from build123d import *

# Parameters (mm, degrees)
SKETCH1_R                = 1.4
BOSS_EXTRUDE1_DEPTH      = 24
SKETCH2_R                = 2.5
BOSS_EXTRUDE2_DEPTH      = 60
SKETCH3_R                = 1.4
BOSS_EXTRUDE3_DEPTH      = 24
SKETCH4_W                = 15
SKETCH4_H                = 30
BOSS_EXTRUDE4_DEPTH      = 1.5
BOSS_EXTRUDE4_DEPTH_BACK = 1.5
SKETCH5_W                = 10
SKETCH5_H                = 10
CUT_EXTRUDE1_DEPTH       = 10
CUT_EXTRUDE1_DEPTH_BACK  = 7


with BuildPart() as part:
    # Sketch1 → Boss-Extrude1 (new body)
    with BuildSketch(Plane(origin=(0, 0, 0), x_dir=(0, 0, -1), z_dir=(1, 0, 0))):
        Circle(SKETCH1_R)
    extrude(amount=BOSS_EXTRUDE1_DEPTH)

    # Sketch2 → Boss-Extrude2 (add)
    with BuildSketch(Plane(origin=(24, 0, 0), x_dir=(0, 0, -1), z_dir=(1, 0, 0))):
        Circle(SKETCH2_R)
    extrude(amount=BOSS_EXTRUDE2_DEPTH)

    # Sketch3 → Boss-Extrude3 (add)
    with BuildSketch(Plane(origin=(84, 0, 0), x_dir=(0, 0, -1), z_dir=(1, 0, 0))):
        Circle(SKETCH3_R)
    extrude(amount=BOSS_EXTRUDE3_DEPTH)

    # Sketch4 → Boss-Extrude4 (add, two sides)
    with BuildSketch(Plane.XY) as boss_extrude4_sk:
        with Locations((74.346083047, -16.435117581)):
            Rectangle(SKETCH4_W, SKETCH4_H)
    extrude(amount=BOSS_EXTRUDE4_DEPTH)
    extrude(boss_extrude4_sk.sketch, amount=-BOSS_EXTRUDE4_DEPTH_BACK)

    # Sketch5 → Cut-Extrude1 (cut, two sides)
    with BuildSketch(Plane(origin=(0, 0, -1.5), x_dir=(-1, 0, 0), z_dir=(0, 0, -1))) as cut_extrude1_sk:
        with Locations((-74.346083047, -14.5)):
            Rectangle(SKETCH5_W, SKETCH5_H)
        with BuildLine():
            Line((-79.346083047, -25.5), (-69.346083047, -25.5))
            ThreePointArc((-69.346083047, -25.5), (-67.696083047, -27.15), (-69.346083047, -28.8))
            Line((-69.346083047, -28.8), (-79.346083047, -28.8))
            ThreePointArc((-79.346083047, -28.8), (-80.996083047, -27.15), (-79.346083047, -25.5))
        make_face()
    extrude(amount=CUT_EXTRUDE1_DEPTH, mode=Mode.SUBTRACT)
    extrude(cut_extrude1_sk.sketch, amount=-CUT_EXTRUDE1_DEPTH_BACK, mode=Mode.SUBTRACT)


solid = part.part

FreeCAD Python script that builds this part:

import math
import FreeCAD as App
import Part
import Sketcher

doc = App.newDocument("Part")
body = doc.addObject("PartDesign::Body", "Body")

# Sketch on YZ plane
sketch1 = body.newObject("Sketcher::SketchObject", "Sketch")
sketch1.AttachmentSupport = (doc.getObject("YZ_Plane"), [""])
sketch1.MapMode = "FlatFace"
sketch1.addGeometry(Part.Circle(App.Vector(0, 0, 0), App.Vector(0, 0, 1), 1.4), False)
sketch1.addConstraint([
    Sketcher.Constraint("Coincident", 0, 3, -1, 1),
    Sketcher.Constraint("Diameter", 0, 2.8),
])
pad1 = body.newObject("PartDesign::Pad", "Pad")
pad1.Profile = sketch1
pad1.Length = 24

# Sketch on YZ plane
sketch2 = body.newObject("Sketcher::SketchObject", "Sketch001")
sketch2.AttachmentSupport = (doc.getObject("YZ_Plane"), [""])
sketch2.MapMode = "FlatFace"
sketch2.AttachmentOffset = App.Placement(App.Vector(0, 0, 24), App.Rotation())
sketch2.addGeometry(Part.Circle(App.Vector(0, 0, 0), App.Vector(0, 0, 1), 2.5), False)
sketch2.addConstraint([
    Sketcher.Constraint("Coincident", 0, 3, -1, 1),
    Sketcher.Constraint("Diameter", 0, 5.0),
])
pad2 = body.newObject("PartDesign::Pad", "Pad001")
pad2.Profile = sketch2
pad2.Length = 60

# Sketch on YZ plane
sketch3 = body.newObject("Sketcher::SketchObject", "Sketch002")
sketch3.AttachmentSupport = (doc.getObject("YZ_Plane"), [""])
sketch3.MapMode = "FlatFace"
sketch3.AttachmentOffset = App.Placement(App.Vector(0, 0, 84), App.Rotation())
sketch3.addGeometry(Part.Circle(App.Vector(0, 0, 0), App.Vector(0, 0, 1), 1.4), False)
sketch3.addConstraint([
    Sketcher.Constraint("Coincident", 0, 3, -1, 1),
    Sketcher.Constraint("Diameter", 0, 2.8),
])
pad3 = body.newObject("PartDesign::Pad", "Pad002")
pad3.Profile = sketch3
pad3.Length = 24

# Sketch on XY plane
sketch4 = body.newObject("Sketcher::SketchObject", "Sketch003")
sketch4.AttachmentSupport = (doc.getObject("XY_Plane"), [""])
sketch4.MapMode = "FlatFace"
sketch4.addGeometry([
    Part.LineSegment(App.Vector(66.846083, -1.435118, 0), App.Vector(66.846083, -31.435118, 0)),
    Part.LineSegment(App.Vector(66.846083, -31.435118, 0), App.Vector(81.846083, -31.435118, 0)),
    Part.LineSegment(App.Vector(81.846083, -31.435118, 0), App.Vector(81.846083, -1.435118, 0)),
    Part.LineSegment(App.Vector(81.846083, -1.435118, 0), App.Vector(66.846083, -1.435118, 0)),
], False)
sketch4.addConstraint([
    Sketcher.Constraint("Coincident", 0, 2, 1, 1),
    Sketcher.Constraint("Coincident", 1, 2, 2, 1),
    Sketcher.Constraint("Coincident", 2, 2, 3, 1),
    Sketcher.Constraint("Coincident", 3, 2, 0, 1),
    Sketcher.Constraint("Vertical", 0),
    Sketcher.Constraint("Horizontal", 1),
    Sketcher.Constraint("Vertical", 2),
    Sketcher.Constraint("Horizontal", 3),
    Sketcher.Constraint("DistanceX", 1, 1, 1, 2, 15.0),
    Sketcher.Constraint("DistanceY", 0, 2, 0, 1, 30.0),
    Sketcher.Constraint("DistanceX", -1, 1, 0, 2, 66.846083),
    Sketcher.Constraint("DistanceY", 0, 2, -1, 1, 31.435118),
])
pad4 = body.newObject("PartDesign::Pad", "Pad003")
pad4.Profile = sketch4
pad4.Type = "TwoLengths"
pad4.Length = 1.5
pad4.Length2 = 1.5

# Sketch on XY plane
sketch5 = body.newObject("Sketcher::SketchObject", "Sketch004")
sketch5.AttachmentSupport = (doc.getObject("XY_Plane"), [""])
sketch5.MapMode = "FlatFace"
sketch5.AttachmentOffset = App.Placement(App.Vector(0, 0, -1.5), App.Rotation())
sketch5.addGeometry([
    Part.LineSegment(App.Vector(79.346083, -9.5, 0), App.Vector(79.346083, -19.5, 0)),  # 0
    Part.LineSegment(App.Vector(79.346083, -19.5, 0), App.Vector(69.346083, -19.5, 0)),  # 1
    Part.LineSegment(App.Vector(69.346083, -19.5, 0), App.Vector(69.346083, -9.5, 0)),  # 2
    Part.LineSegment(App.Vector(69.346083, -9.5, 0), App.Vector(79.346083, -9.5, 0)),  # 3
    Part.LineSegment(App.Vector(69.346083, -25.5, 0), App.Vector(79.346083, -25.5, 0)),  # 4
    Part.ArcOfCircle(Part.Circle(App.Vector(79.346083, -27.15, 0), App.Vector(0, 0, 1), 1.65), math.radians(-90), math.radians(90)),  # 5
    Part.LineSegment(App.Vector(79.346083, -28.8, 0), App.Vector(69.346083, -28.8, 0)),  # 6
    Part.ArcOfCircle(Part.Circle(App.Vector(69.346083, -27.15, 0), App.Vector(0, 0, 1), 1.65), math.radians(90), math.radians(270)),  # 7
], False)
sketch5.addConstraint([
    Sketcher.Constraint("Coincident", 0, 2, 1, 1),
    Sketcher.Constraint("Coincident", 1, 2, 2, 1),
    Sketcher.Constraint("Coincident", 2, 2, 3, 1),
    Sketcher.Constraint("Coincident", 3, 2, 0, 1),
    Sketcher.Constraint("Tangent", 4, 2, 5, 2),
    Sketcher.Constraint("Tangent", 5, 1, 6, 1),
    Sketcher.Constraint("Tangent", 6, 2, 7, 2),
    Sketcher.Constraint("Tangent", 7, 1, 4, 1),
    Sketcher.Constraint("Vertical", 0),
    Sketcher.Constraint("Horizontal", 1),
    Sketcher.Constraint("Vertical", 2),
    Sketcher.Constraint("Horizontal", 3),
    Sketcher.Constraint("Horizontal", 4),
    Sketcher.Constraint("Horizontal", 6),
    Sketcher.Constraint("Vertical", 5, 3, 0, 2),
    Sketcher.Constraint("Vertical", 7, 3, 1, 2),
    Sketcher.Constraint("Equal", 6, 0),
    Sketcher.Constraint("DistanceX", 1, 2, 1, 1, 10.0),
    Sketcher.Constraint("Radius", 5, 1.65),
    Sketcher.Constraint("DistanceY", 4, 2, 0, 2, 6.0),
    Sketcher.Constraint("DistanceY", 0, 2, -1, 1, 19.5),
    Sketcher.Constraint("DistanceX", -1, 1, 5, 3, 79.346083),
])
pocket1 = body.newObject("PartDesign::Pocket", "Pocket")
pocket1.Profile = sketch5
pocket1.Type = "ThroughAll"
pocket1.Midplane = True

doc.recompute()
